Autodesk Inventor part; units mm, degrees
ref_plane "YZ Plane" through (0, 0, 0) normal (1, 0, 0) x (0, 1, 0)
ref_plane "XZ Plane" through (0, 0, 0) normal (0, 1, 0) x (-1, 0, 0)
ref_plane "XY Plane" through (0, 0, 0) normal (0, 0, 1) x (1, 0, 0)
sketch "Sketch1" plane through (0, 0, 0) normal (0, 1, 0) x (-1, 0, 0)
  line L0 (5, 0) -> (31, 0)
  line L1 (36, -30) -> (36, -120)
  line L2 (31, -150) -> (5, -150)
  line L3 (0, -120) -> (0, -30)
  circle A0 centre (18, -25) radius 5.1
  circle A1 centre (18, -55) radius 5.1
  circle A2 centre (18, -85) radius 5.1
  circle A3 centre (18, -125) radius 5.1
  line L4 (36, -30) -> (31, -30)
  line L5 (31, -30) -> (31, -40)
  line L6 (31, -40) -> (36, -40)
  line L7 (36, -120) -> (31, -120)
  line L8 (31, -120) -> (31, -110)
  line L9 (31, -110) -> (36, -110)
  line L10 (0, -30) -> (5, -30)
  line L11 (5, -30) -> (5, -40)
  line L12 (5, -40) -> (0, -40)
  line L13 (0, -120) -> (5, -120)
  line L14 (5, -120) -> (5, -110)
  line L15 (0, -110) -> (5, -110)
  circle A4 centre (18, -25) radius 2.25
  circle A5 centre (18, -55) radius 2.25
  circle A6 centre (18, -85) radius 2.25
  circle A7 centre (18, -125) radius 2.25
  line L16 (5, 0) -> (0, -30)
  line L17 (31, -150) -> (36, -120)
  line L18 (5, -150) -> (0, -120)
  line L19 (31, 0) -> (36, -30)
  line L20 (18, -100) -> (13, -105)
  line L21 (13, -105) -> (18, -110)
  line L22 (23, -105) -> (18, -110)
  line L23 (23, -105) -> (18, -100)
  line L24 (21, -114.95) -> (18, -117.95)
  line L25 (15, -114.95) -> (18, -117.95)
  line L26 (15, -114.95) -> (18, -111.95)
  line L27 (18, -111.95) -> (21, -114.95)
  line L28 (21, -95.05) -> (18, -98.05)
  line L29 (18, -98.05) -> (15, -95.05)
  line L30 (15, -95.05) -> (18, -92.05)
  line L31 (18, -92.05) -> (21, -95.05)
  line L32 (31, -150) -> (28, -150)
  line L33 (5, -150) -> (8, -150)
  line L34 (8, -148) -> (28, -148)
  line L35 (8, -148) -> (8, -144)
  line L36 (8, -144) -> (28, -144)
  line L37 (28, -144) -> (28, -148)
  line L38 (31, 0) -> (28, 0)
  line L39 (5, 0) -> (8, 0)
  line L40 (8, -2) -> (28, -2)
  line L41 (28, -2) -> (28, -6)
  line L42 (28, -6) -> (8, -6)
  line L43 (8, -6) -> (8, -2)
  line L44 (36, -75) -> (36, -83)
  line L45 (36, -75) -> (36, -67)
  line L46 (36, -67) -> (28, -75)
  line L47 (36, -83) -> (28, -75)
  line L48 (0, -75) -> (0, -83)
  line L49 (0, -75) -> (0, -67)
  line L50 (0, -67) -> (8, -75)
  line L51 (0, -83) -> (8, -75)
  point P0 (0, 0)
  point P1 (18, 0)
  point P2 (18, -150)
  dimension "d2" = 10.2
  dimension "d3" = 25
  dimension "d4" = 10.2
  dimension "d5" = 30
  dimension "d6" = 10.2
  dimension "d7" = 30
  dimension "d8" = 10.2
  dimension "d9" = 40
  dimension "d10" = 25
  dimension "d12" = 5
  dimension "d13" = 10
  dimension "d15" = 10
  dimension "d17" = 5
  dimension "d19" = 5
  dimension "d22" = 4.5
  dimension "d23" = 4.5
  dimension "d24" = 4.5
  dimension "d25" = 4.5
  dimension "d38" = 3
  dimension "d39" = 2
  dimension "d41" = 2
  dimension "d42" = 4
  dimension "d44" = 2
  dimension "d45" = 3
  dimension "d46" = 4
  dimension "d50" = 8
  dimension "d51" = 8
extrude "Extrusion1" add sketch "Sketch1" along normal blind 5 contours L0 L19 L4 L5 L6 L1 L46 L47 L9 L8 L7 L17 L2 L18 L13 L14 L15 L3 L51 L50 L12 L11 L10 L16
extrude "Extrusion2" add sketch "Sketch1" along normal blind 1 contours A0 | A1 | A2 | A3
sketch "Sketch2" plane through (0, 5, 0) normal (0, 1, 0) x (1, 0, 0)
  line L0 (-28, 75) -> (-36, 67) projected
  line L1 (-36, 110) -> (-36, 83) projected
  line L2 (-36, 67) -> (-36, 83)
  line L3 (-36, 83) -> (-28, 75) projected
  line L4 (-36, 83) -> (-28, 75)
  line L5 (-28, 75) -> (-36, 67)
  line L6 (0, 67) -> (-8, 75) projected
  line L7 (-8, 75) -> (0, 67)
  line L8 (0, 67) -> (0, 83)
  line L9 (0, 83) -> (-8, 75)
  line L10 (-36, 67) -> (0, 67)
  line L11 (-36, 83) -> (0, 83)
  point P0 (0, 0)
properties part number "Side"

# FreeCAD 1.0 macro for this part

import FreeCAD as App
import Part
import Sketcher

V = App.Vector
Q = App.Units.Quantity


def add_polygon(sketch, points):
    """Adds a closed chain of lines whose ends are joined by coincident constraints."""
    first, n = sketch.GeometryCount, len(points)
    for a, b in zip(points, points[1:] + points[:1]):
        sketch.addGeometry(Part.LineSegment(App.Vector(*a, 0), App.Vector(*b, 0)), False)
    for i in range(n):
        sketch.addConstraint(Sketcher.Constraint("Coincident", first + i, 2, first + (i + 1) % n, 1))

doc = App.newDocument("Part")
body = doc.addObject("PartDesign::Body", "Body")

sketch1 = doc.addObject("Sketcher::SketchObject", "Sketch")
body.addObject(sketch1)
sketch1.AttachmentSupport = (doc.XZ_Plane, [""])
sketch1.MapMode = "FlatFace"
add_polygon(sketch1, [(-31, 0), (-5, 0), (0, -30), (-5, -30), (-5, -40), (0, -40), (0, -67), (-8, -75), (0, -83), (0, -110), (-5, -110), (-5, -120), (0, -120), (-5, -150), (-31, -150), (-36, -120), (-31, -120), (-31, -110), (-36, -110), (-36, -83), (-28, -75), (-36, -67), (-36, -40), (-31, -40), (-31, -30), (-36, -30)])
add_polygon(sketch1, [(-28, -148), (-8, -148), (-8, -144), (-28, -144)])
sketch1.addGeometry(Part.Circle(V(-18, -125, 0), V(0, 0, 1), 5.1), False)
add_polygon(sketch1, [(-18, -112), (-21, -115), (-18, -118), (-15, -115)])
add_polygon(sketch1, [(-13, -105), (-18, -100), (-23, -105), (-18, -110)])
add_polygon(sketch1, [(-18, -92), (-21, -95), (-18, -98), (-15, -95)])
sketch1.addGeometry(Part.Circle(V(-18, -85, 0), V(0, 0, 1), 5.1), False)
sketch1.addGeometry(Part.Circle(V(-18, -55, 0), V(0, 0, 1), 5.1), False)
sketch1.addGeometry(Part.Circle(V(-18, -25, 0), V(0, 0, 1), 5.1), False)
add_polygon(sketch1, [(-8, -6), (-8, -2), (-28, -2), (-28, -6)])
sketch1.addConstraint([
    Sketcher.Constraint("Horizontal", 0),
    Sketcher.Constraint("Horizontal", 2),
    Sketcher.Constraint("Vertical", 3),
    Sketcher.Constraint("Horizontal", 4),
    Sketcher.Constraint("Vertical", 5),
    Sketcher.Constraint("Vertical", 8),
    Sketcher.Constraint("Horizontal", 9),
    Sketcher.Constraint("Vertical", 10),
    Sketcher.Constraint("Horizontal", 11),
    Sketcher.Constraint("Horizontal", 13),
    Sketcher.Constraint("Horizontal", 15),
    Sketcher.Constraint("Vertical", 16),
    Sketcher.Constraint("Horizontal", 17),
    Sketcher.Constraint("Vertical", 18),
    Sketcher.Constraint("Vertical", 21),
    Sketcher.Constraint("Horizontal", 22),
    Sketcher.Constraint("Vertical", 23),
    Sketcher.Constraint("Horizontal", 24),
    Sketcher.Constraint("Horizontal", 26),
    Sketcher.Constraint("Vertical", 27),
    Sketcher.Constraint("Horizontal", 28),
    Sketcher.Constraint("Vertical", 29),
    Sketcher.Constraint("Vertical", 46),
    Sketcher.Constraint("Horizontal", 47),
    Sketcher.Constraint("Vertical", 48),
    Sketcher.Constraint("Horizontal", 49),
    Sketcher.Constraint("Equal", 30, 43),
    Sketcher.Constraint("Equal", 43, 44),
    Sketcher.Constraint("Equal", 44, 45),
    Sketcher.Constraint("PointOnObject", 0, 2, -1),
    Sketcher.Constraint("PointOnObject", 1, 2, -2),
    Sketcher.Constraint("PointOnObject", 4, 2, -2),
    Sketcher.Constraint("PointOnObject", 7, 2, -2),
    Sketcher.Constraint("PointOnObject", 11, 2, -2),
    Sketcher.Constraint("Perpendicular", 6, 7),
    Sketcher.Constraint("Parallel", 1, 14),
    Sketcher.Constraint("Perpendicular", 7, 19),
    Sketcher.Constraint("Perpendicular", 19, 20),
    Sketcher.Constraint("Parallel", 12, 25),
    Sketcher.Constraint("Perpendicular", 20, 31),
    Sketcher.Constraint("Perpendicular", 31, 32),
    Sketcher.Constraint("Perpendicular", 32, 33),
    Sketcher.Constraint("Perpendicular", 33, 34),
    Sketcher.Constraint("Parallel", 34, 35),
    Sketcher.Constraint("Perpendicular", 35, 36),
    Sketcher.Constraint("Perpendicular", 36, 37),
    Sketcher.Constraint("Perpendicular", 37, 38),
    Sketcher.Constraint("Parallel", 38, 39),
    Sketcher.Constraint("Perpendicular", 39, 40),
    Sketcher.Constraint("Perpendicular", 40, 41),
    Sketcher.Constraint("Perpendicular", 41, 42),
    Sketcher.Constraint("Horizontal", 11, 2, 14, 2),
    Sketcher.Constraint("Horizontal", 9, 2, 16, 2),
    Sketcher.Constraint("Horizontal", 7, 2, 18, 2),
    Sketcher.Constraint("Horizontal", 6, 2, 19, 2),
    Sketcher.Constraint("Horizontal", 5, 2, 20, 2),
    Sketcher.Constraint("Horizontal", 4, 2, 21, 2),
    Sketcher.Constraint("Horizontal", 2, 2, 23, 2),
    Sketcher.Constraint("Horizontal", 31, 2, 33, 2),
    Sketcher.Constraint("Horizontal", 17, 2, 37, 2),
    Sketcher.Constraint("Horizontal", 36, 2, 38, 2),
    Sketcher.Constraint("Horizontal", 39, 2, 41, 2),
    Sketcher.Constraint("Vertical", 30, 3, 43, 3),
    Sketcher.Constraint("Vertical", 43, 3, 44, 3),
    Sketcher.Constraint("Vertical", 44, 3, 45, 3),
    Sketcher.Constraint("Vertical", 0, 2, 2, 2),
    Sketcher.Constraint("Vertical", 3, 2, 9, 2),
    Sketcher.Constraint("Vertical", 10, 2, 12, 2),
    Sketcher.Constraint("Vertical", 13, 2, 15, 2),
    Sketcher.Constraint("Vertical", 14, 2, 17, 2),
    Sketcher.Constraint("Vertical", 18, 2, 20, 2),
    Sketcher.Constraint("Vertical", 16, 2, 22, 2),
    Sketcher.Constraint("Vertical", 21, 2, 24, 2),
    Sketcher.Constraint("Vertical", 23, 2, 25, 2),
    Sketcher.Constraint("Vertical", 6, 2, 26, 2),
    Sketcher.Constraint("Vertical", 19, 2, 28, 2),
    Sketcher.Constraint("Vertical", 45, 3, 32, 2),
    Sketcher.Constraint("Vertical", 34, 2, 35, 2),
    Sketcher.Constraint("Vertical", 31, 2, 39, 2),
    Sketcher.Constraint("Vertical", 37, 2, 40, 2),
    Sketcher.Constraint("Vertical", 27, 2, 46, 2),
    Sketcher.Constraint("Vertical", 29, 2, 47, 2),
    Sketcher.Constraint("Equal", 5, 8),
    Sketcher.Constraint("Equal", 3, 10),
    Sketcher.Constraint("Equal", 29, 46),
    Sketcher.Constraint("Diameter", 30, Q("10.2 mm")),
    Sketcher.Constraint("DistanceX", 2, 2, 2, 1, Q("5 mm")),
    Sketcher.Constraint("DistanceY", 3, 2, 3, 1, Q("10 mm")),
    Sketcher.Constraint("DistanceY", 27, 1, 27, 2, Q("4 mm")),
    Sketcher.Constraint("DistanceY", 45, 3, -1, 1, Q("25 mm")),
    Sketcher.Constraint("DistanceY", 1, 2, -1, 1, Q("30 mm")),
    Sketcher.Constraint("DistanceX", 6, 2, -1, 1, Q("8 mm")),
    Sketcher.Constraint("DistanceY", 46, 2, -1, 1, Q("2 mm")),
    Sketcher.Constraint("DistanceY", 30, 3, 43, 3, Q("40 mm")),
    Sketcher.Constraint("DistanceY", 43, 3, 44, 3, Q("30 mm")),
    Sketcher.Constraint("DistanceY", 44, 3, 45, 3, Q("30 mm")),
    Sketcher.Constraint("DistanceX", 43, 3, 6, 2, Q("10 mm")),
    Sketcher.Constraint("DistanceY", 43, 3, 6, 2, Q("10 mm")),
    Sketcher.Constraint("DistanceX", 19, 2, 43, 3, Q("10 mm")),
    Sketcher.Constraint("DistanceY", 12, 2, 26, 2, Q("2 mm")),
    Sketcher.Constraint("DistanceX", 31, 2, 30, 3, Q("3 mm")),
    Sketcher.Constraint("DistanceY", 9, 2, 35, 2, Q("10 mm")),
    Sketcher.Constraint("DistanceY", 31, 2, -1, 1, Q("114.95 mm")),
    Sketcher.Constraint("DistanceY", 39, 2, -1, 1, Q("95.05 mm")),
])
pad1 = doc.addObject("PartDesign::Pad", "Pad")
body.addObject(pad1)
pad1.Profile = sketch1
pad1.Length = 5
pad1.Reversed = True

sketch2 = doc.addObject("Sketcher::SketchObject", "Sketch001")
body.addObject(sketch2)
sketch2.AttachmentSupport = (doc.XZ_Plane, [""])
sketch2.MapMode = "FlatFace"
sketch2.addGeometry([
    Part.Circle(V(-18, -25, 0), V(0, 0, 1), 5.1),
    Part.Circle(V(-18, -25, 0), V(0, 0, 1), 2.2),
    Part.Circle(V(-18, -55, 0), V(0, 0, 1), 5.1),
    Part.Circle(V(-18, -55, 0), V(0, 0, 1), 2.2),
    Part.Circle(V(-18, -85, 0), V(0, 0, 1), 5.1),
    Part.Circle(V(-18, -85, 0), V(0, 0, 1), 2.2),
    Part.Circle(V(-18, -125, 0), V(0, 0, 1), 5.1),
    Part.Circle(V(-18, -125, 0), V(0, 0, 1), 2.2),
], False)
sketch2.addConstraint([
    Sketcher.Constraint("Coincident", 1, 3, 0, 3),
    Sketcher.Constraint("Coincident", 3, 3, 2, 3),
    Sketcher.Constraint("Coincident", 5, 3, 4, 3),
    Sketcher.Constraint("Coincident", 7, 3, 6, 3),
    Sketcher.Constraint("Equal", 0, 2),
    Sketcher.Constraint("Equal", 1, 3),
    Sketcher.Constraint("Equal", 2, 4),
    Sketcher.Constraint("Equal", 3, 5),
    Sketcher.Constraint("Equal", 4, 6),
    Sketcher.Constraint("Equal", 5, 7),
    Sketcher.Constraint("Vertical", 1, 3, 2, 3),
    Sketcher.Constraint("Vertical", 3, 3, 4, 3),
    Sketcher.Constraint("Vertical", 5, 3, 6, 3),
    Sketcher.Constraint("Diameter", 0, Q("10.2 mm")),
    Sketcher.Constraint("Diameter", 1, Q("4.5 mm")),
    Sketcher.Constraint("DistanceY", 0, 3, -1, 1, Q("25 mm")),
    Sketcher.Constraint("DistanceY", 2, 3, 0, 3, Q("30 mm")),
    Sketcher.Constraint("DistanceY", 4, 3, 2, 3, Q("30 mm")),
    Sketcher.Constraint("DistanceY", 6, 3, 4, 3, Q("40 mm")),
    Sketcher.Constraint("DistanceX", 0, 3, -1, 1, Q("18 mm")),
])
pad2 = doc.addObject("PartDesign::Pad", "Pad001")
body.addObject(pad2)
pad2.Profile = sketch2
pad2.Length = 1
pad2.Reversed = True

doc.recompute()
